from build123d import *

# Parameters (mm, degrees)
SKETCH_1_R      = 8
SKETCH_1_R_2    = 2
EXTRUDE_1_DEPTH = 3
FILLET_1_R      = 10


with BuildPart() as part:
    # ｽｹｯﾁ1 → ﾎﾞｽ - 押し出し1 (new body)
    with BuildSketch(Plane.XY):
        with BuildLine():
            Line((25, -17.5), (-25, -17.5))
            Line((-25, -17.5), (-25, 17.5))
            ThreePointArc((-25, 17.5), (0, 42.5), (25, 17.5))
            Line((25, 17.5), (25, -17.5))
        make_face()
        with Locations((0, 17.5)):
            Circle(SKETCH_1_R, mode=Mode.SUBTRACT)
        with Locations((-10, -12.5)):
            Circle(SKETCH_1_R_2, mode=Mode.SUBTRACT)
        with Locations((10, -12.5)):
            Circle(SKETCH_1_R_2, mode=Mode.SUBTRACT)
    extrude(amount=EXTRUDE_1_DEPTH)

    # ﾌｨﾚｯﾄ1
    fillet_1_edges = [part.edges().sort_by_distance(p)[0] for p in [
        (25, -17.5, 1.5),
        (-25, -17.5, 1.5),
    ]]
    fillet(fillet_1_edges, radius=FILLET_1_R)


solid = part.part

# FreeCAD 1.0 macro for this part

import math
import FreeCAD as App
import Part
import Sketcher
Q = App.Units.Quantity


def edges_at(feature, points):
    """Names of the edges that pass closest to the given points."""
    edges = feature.Shape.Edges
    near = lambda p: min(range(len(edges)), key=lambda i: edges[i].distToShape(Part.Vertex(*p))[0])
    return sorted({f"Edge{near(p) + 1}" for p in points})

doc = App.newDocument("Part")
params = doc.addObject("Spreadsheet::Sheet", "Params")
for row, (alias, value) in enumerate([
    ("sketch1_diameter", "4 mm"),
    ("sketch1_diameter2", "16 mm"),
    ("sketch1_radius", "25 mm"),
    ("sketch1_height", "35 mm"),
    ("pad1_length", "3 mm"),
    ("fillet_radius", "10 mm"),
], start=1):
    params.set(f"A{row}", alias)
    params.set(f"B{row}", "=" + value)
    params.setAlias(f"B{row}", alias)

body = doc.addObject("PartDesign::Body", "Body")

# Sketch on XY plane
sketch1 = body.newObject("Sketcher::SketchObject", "Sketch")
sketch1.AttachmentSupport = (doc.getObject("XY_Plane"), [""])
sketch1.MapMode = "FlatFace"
sketch1.addGeometry([
    Part.LineSegment(App.Vector(-25, -17.5, 0), App.Vector(25, -17.5, 0)),  # 0
    Part.LineSegment(App.Vector(25, -17.5, 0), App.Vector(25, 17.5, 0)),  # 1
    Part.ArcOfCircle(Part.Circle(App.Vector(0, 17.5, 0), App.Vector(0, 0, 1), 25), math.radians(0), math.radians(180)),  # 2
    Part.LineSegment(App.Vector(-25, 17.5, 0), App.Vector(-25, -17.5, 0)),  # 3
    Part.Circle(App.Vector(10, -12.5, 0), App.Vector(0, 0, 1), 2),  # 4
    Part.Circle(App.Vector(-10, -12.5, 0), App.Vector(0, 0, 1), 2),  # 5
    Part.Circle(App.Vector(0, 17.5, 0), App.Vector(0, 0, 1), 8),  # 6
], False)
sketch1.addConstraint([
    Sketcher.Constraint("Coincident", 0, 2, 1, 1),
    Sketcher.Constraint("Tangent", 1, 2, 2, 1),
    Sketcher.Constraint("Tangent", 2, 2, 3, 1),
    Sketcher.Constraint("Coincident", 3, 2, 0, 1),
    Sketcher.Constraint("Horizontal", 0),
    Sketcher.Constraint("Vertical", 1),
    Sketcher.Constraint("Vertical", 3),
    Sketcher.Constraint("Coincident", 6, 3, 2, 3),
    Sketcher.Constraint("Equal", 4, 5),
    Sketcher.Constraint("Symmetric", 0, 2, 2, 2, -1, 1),
    Sketcher.Constraint("Symmetric", 4, 3, 5, 3, -2),
    Sketcher.Constraint("Diameter", 4, Q("4 mm")),
    Sketcher.Constraint("Diameter", 6, Q("16 mm")),
    Sketcher.Constraint("Radius", 2, Q("25 mm")),
    Sketcher.Constraint("DistanceY", 1, 1, 1, 2, Q("35 mm")),
    Sketcher.Constraint("DistanceX", -1, 1, 4, 3, Q("10 mm")),
    Sketcher.Constraint("DistanceY", 4, 3, 2, 3, Q("30 mm")),
])
sketch1.setExpression("Constraints[11]", "Params.sketch1_diameter")
sketch1.setExpression("Constraints[12]", "Params.sketch1_diameter2")
sketch1.setExpression("Constraints[13]", "Params.sketch1_radius")
sketch1.setExpression("Constraints[14]", "Params.sketch1_height")
pad1 = body.newObject("PartDesign::Pad", "Pad")
pad1.Profile = sketch1
pad1.setExpression("Length", "Params.pad1_length")
doc.recompute()

fillet = body.newObject("PartDesign::Fillet", "Fillet")
fillet.Base = (pad1, edges_at(pad1, [(25, -17.5, 1.5), (-25, -17.5, 1.5)]))
fillet.setExpression("Radius", "Params.fillet_radius")

doc.recompute()
